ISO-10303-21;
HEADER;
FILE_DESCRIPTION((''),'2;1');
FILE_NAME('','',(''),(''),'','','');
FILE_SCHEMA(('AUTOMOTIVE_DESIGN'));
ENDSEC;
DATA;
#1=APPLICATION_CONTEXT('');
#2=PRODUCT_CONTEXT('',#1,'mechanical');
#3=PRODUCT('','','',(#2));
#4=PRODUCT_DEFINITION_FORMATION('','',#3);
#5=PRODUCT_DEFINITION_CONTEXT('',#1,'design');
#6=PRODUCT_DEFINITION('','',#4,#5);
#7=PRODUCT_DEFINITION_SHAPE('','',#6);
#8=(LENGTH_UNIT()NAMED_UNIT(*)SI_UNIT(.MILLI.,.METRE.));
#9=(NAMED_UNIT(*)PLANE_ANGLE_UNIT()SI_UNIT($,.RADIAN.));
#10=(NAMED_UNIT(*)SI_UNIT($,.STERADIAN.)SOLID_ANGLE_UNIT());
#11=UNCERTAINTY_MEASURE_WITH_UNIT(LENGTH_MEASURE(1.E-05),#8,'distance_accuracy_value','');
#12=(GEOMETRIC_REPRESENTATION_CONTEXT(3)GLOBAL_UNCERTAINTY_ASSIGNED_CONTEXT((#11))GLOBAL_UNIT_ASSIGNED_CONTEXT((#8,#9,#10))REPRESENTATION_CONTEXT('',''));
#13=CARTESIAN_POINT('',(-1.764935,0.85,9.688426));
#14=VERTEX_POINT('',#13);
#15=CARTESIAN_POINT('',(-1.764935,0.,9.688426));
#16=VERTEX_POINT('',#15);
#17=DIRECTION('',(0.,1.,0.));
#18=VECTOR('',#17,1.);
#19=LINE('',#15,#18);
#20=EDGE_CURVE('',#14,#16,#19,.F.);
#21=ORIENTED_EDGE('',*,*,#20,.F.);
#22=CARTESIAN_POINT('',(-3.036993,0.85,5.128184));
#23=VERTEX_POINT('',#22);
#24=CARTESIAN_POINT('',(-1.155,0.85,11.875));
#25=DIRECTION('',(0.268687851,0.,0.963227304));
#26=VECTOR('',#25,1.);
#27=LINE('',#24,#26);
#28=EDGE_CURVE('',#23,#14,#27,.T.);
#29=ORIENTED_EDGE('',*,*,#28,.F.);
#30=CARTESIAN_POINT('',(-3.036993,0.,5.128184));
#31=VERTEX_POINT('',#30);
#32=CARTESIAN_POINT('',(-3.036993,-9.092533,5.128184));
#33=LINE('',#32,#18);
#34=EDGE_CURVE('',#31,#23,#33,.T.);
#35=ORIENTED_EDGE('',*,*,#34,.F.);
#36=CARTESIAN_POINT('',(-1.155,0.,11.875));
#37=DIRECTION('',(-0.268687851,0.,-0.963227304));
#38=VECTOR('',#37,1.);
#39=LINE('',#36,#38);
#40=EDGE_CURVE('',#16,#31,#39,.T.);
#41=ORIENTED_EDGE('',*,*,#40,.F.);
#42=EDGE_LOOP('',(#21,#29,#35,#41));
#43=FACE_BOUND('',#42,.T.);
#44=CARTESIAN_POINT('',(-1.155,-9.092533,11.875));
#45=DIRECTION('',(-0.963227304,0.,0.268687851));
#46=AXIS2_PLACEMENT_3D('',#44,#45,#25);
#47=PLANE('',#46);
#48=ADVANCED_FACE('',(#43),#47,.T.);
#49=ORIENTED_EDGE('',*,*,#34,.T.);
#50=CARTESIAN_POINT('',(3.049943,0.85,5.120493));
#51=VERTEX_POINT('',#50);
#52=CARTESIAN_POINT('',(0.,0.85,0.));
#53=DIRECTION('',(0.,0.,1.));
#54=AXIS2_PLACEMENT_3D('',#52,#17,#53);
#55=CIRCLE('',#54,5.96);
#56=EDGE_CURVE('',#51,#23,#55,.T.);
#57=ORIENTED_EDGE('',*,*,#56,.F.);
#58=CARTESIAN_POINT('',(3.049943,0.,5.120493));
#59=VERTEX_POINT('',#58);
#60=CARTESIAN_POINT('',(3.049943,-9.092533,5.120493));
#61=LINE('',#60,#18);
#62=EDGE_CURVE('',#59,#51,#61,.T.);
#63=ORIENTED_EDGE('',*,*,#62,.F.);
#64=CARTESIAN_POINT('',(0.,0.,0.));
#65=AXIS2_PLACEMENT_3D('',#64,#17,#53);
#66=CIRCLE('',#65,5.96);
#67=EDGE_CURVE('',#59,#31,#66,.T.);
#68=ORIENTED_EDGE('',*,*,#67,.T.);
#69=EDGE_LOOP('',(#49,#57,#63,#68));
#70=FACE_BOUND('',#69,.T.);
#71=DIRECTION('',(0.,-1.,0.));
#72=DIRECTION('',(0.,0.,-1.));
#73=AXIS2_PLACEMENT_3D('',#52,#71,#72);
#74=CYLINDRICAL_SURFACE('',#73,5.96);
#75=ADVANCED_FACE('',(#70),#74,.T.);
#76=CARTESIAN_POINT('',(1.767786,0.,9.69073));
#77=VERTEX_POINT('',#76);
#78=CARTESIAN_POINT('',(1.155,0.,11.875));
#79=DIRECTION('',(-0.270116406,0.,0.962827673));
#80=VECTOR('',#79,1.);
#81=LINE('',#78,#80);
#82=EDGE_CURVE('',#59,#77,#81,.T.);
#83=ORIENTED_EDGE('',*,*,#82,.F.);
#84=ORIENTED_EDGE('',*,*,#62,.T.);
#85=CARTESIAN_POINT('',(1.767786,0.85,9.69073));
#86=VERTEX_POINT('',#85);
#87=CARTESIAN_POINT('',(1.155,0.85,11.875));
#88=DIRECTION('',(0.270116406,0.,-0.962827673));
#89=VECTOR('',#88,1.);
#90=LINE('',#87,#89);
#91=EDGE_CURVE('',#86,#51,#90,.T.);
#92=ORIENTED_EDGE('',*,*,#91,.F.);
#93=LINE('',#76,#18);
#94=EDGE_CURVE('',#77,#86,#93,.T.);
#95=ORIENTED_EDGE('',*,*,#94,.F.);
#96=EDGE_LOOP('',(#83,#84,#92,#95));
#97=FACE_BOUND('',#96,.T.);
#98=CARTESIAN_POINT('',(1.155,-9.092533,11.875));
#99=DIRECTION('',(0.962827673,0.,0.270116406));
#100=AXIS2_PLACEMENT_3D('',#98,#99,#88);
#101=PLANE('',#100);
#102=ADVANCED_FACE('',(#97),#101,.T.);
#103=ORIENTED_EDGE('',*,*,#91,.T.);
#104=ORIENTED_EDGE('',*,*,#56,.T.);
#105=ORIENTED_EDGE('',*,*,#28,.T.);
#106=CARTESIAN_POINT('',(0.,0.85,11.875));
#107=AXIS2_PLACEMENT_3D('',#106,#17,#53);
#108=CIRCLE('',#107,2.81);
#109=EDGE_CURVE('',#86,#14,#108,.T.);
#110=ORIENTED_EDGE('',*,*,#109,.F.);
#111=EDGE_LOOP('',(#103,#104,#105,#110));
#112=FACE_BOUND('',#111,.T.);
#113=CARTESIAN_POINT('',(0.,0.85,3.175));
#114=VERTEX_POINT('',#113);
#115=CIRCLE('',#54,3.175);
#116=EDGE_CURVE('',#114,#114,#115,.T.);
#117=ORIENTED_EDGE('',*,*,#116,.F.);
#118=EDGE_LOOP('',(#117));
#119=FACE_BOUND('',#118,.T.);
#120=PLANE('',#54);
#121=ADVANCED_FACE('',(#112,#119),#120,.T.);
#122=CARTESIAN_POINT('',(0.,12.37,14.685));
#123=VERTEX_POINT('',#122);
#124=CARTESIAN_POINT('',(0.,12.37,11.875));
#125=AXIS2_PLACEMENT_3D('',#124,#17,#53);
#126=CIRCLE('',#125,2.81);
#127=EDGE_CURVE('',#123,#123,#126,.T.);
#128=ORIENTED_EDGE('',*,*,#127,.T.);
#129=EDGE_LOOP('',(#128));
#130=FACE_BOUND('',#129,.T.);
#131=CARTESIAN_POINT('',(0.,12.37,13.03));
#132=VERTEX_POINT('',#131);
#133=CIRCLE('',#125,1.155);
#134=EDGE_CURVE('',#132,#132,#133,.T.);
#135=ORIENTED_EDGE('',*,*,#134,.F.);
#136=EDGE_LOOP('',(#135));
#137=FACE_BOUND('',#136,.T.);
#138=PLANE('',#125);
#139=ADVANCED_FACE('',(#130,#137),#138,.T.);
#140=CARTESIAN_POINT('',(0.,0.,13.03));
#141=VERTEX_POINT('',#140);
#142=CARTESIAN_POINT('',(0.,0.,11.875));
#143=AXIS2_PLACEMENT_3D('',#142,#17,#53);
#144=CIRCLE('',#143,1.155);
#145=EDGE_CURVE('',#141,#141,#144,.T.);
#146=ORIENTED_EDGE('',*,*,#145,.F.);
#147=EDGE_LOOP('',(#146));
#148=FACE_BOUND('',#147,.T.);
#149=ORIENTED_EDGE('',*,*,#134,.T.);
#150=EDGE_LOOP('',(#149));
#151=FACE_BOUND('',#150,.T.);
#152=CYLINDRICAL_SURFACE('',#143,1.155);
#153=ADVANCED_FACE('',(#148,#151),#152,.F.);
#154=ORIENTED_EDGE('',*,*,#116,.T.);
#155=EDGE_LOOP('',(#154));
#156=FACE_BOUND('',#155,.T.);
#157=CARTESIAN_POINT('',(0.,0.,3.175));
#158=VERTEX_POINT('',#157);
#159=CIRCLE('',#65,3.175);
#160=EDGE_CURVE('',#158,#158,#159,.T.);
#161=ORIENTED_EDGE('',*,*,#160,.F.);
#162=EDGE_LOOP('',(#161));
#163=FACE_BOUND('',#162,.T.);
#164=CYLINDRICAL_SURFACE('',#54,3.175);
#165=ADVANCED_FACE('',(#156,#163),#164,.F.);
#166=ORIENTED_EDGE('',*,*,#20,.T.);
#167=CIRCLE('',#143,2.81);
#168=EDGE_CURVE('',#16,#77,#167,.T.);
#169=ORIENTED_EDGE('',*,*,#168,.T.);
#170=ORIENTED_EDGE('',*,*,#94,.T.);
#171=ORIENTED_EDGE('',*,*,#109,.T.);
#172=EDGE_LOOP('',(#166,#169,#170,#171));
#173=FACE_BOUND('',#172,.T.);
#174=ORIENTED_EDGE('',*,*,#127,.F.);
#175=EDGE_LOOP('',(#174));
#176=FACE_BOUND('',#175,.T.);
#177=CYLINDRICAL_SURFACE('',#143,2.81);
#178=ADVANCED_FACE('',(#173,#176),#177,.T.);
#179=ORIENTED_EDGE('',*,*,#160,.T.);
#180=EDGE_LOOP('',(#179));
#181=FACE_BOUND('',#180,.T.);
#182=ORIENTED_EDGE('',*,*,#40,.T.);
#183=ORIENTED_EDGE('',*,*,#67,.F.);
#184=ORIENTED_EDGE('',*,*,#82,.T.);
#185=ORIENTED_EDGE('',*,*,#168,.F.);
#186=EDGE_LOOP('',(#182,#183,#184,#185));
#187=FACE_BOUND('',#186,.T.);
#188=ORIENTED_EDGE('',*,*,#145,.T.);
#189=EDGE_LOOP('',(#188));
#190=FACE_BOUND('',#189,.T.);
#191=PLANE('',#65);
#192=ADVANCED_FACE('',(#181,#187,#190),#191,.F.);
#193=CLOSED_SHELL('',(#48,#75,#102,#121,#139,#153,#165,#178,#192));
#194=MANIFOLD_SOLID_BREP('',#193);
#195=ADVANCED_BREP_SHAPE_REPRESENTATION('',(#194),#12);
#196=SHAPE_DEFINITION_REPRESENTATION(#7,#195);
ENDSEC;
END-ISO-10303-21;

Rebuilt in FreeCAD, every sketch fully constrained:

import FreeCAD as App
import Part
import Sketcher
from FreeCAD import Vector
Q = App.Units.Quantity


def add_polygon(sketch, points):
    """Adds a closed chain of lines whose ends are joined by coincident constraints."""
    first, n = sketch.GeometryCount, len(points)
    for a, b in zip(points, points[1:] + points[:1]):
        sketch.addGeometry(Part.LineSegment(App.Vector(*a, 0), App.Vector(*b, 0)), False)
    for i in range(n):
        sketch.addConstraint(Sketcher.Constraint("Coincident", first + i, 2, first + (i + 1) % n, 1))

doc = App.newDocument("Part")
body = doc.addObject("PartDesign::Body", "Body")

sketch1 = body.newObject("Sketcher::SketchObject", "Sketch")
sketch1.AttachmentSupport = (doc.getObject("XZ_Plane"), [""])
sketch1.MapMode = "FlatFace"
sketch1.addGeometry(Part.Circle(Vector(0, 0, 0), Vector(0, 0, 1), 5.96), False)
sketch1.addConstraint(Sketcher.Constraint("Coincident", 0, 3, -1, 1))
sketch1.addConstraint(Sketcher.Constraint("Diameter", 0, Q("11.92 mm")))
pad1 = body.newObject("PartDesign::Pad", "Pad")
pad1.Profile = sketch1
pad1.Length = 0.85
pad1.Reversed = True

sketch2 = body.newObject("Sketcher::SketchObject", "Sketch001")
sketch2.AttachmentSupport = (doc.getObject("XZ_Plane"), [""])
sketch2.MapMode = "FlatFace"
sketch2.AttachmentOffset = App.Placement(Vector(0, 0, -0.85), App.Rotation())
sketch2.addGeometry(Part.Circle(Vector(0, 0, 0), Vector(0, 0, 1), 3.175), False)
sketch2.addConstraint(Sketcher.Constraint("Coincident", 0, 3, -1, 1))
sketch2.addConstraint(Sketcher.Constraint("Diameter", 0, Q("0.25 in")))
doc.recompute()
hole = body.newObject("PartDesign::Hole", "Hole")
hole.Profile = sketch2
hole.ThreadType = "None"
hole.Diameter = Q("0.25 in")
hole.DepthType = "Dimension"
hole.Depth = 0.85
hole.DrillPoint = "Flat"
hole.Reversed = True
body2 = doc.addObject("PartDesign::Body", "Body001")

sketch3 = body2.newObject("Sketcher::SketchObject", "Sketch002")
sketch3.AttachmentSupport = (doc.getObject("XZ_Plane001"), [""])
sketch3.MapMode = "FlatFace"
sketch3.AttachmentOffset = App.Placement(Vector(0, 0, -0.85), App.Rotation())
sketch3.addGeometry(Part.Circle(Vector(0, 11.875, 0), Vector(0, 0, 1), 2.81), False)
sketch3.addGeometry(Part.Circle(Vector(0, 11.875, 0), Vector(0, 0, 1), 1.155), False)
sketch3.addConstraint(Sketcher.Constraint("Coincident", 1, 3, 0, 3))
sketch3.addConstraint(Sketcher.Constraint("PointOnObject", 0, 3, -2))
sketch3.addConstraint(Sketcher.Constraint("Diameter", 0, Q("5.62 mm")))
sketch3.addConstraint(Sketcher.Constraint("Diameter", 1, Q("2.31 mm")))
sketch3.addConstraint(Sketcher.Constraint("DistanceY", -1, 1, 0, 3, Q("11.875 mm")))
pad2 = body2.newObject("PartDesign::Pad", "Pad001")
pad2.Profile = sketch3
pad2.Type = "TwoLengths"
pad2.Length = 11.52
pad2.Length2 = 0.85
pad2.Reversed = True
body.AllowCompound = True
doc.recompute()

boolean = body.newObject("PartDesign::Boolean", "Boolean")
boolean.Type = "Fuse"
boolean.addObjects([body2])

sketch4 = body.newObject("Sketcher::SketchObject", "Sketch003")
sketch4.AttachmentSupport = (doc.getObject("XZ_Plane"), [""])
sketch4.MapMode = "FlatFace"
sketch4.AttachmentOffset = App.Placement(Vector(0, 0, -0.85), App.Rotation())
add_polygon(sketch4, [(-3.036993, 5.128184), (-1.155, 11.875), (1.155, 11.875), (3.049943, 5.120493)])
sketch4.addConstraint(Sketcher.Constraint("Horizontal", 1))
sketch4.addConstraint(Sketcher.Constraint("DistanceX", 1, 1, 1, 2, Q("2.31 mm")))
sketch4.addConstraint(Sketcher.Constraint("DistanceX", 0, 2, -1, 1, Q("1.155 mm")))
sketch4.addConstraint(Sketcher.Constraint("DistanceY", -1, 1, 0, 2, Q("11.875 mm")))
sketch4.addConstraint(Sketcher.Constraint("Distance", 2, Q("7.015281 mm")))
sketch4.addConstraint(Sketcher.Constraint("Distance", 3, Q("6.086941 mm")))
sketch4.addConstraint(Sketcher.Constraint("DistanceY", 2, 2, 3, 2, Q("0.007691 mm")))
sketch4.addConstraint(Sketcher.Constraint("Distance", 0, Q("7.004386 mm")))
pad3 = body.newObject("PartDesign::Pad", "Pad002")
pad3.Profile = sketch4
pad3.Length = 0.85

sketch5 = body.newObject("Sketcher::SketchObject", "Sketch004")
sketch5.AttachmentSupport = (doc.getObject("XZ_Plane"), [""])
sketch5.MapMode = "FlatFace"
sketch5.AttachmentOffset = App.Placement(Vector(0, 0, -0.85), App.Rotation())
sketch5.addGeometry(Part.Circle(Vector(0, 11.875, 0), Vector(0, 0, 1), 1.155), False)
sketch5.addConstraint(Sketcher.Constraint("PointOnObject", 0, 3, -2))
sketch5.addConstraint(Sketcher.Constraint("Diameter", 0, Q("2.31 mm")))
sketch5.addConstraint(Sketcher.Constraint("DistanceY", -1, 1, 0, 3, Q("11.875 mm")))
pocket1 = body.newObject("PartDesign::Pocket", "Pocket")
pocket1.Profile = sketch5
pocket1.Type = "ThroughAll"
pocket1.Reversed = True

doc.recompute()
